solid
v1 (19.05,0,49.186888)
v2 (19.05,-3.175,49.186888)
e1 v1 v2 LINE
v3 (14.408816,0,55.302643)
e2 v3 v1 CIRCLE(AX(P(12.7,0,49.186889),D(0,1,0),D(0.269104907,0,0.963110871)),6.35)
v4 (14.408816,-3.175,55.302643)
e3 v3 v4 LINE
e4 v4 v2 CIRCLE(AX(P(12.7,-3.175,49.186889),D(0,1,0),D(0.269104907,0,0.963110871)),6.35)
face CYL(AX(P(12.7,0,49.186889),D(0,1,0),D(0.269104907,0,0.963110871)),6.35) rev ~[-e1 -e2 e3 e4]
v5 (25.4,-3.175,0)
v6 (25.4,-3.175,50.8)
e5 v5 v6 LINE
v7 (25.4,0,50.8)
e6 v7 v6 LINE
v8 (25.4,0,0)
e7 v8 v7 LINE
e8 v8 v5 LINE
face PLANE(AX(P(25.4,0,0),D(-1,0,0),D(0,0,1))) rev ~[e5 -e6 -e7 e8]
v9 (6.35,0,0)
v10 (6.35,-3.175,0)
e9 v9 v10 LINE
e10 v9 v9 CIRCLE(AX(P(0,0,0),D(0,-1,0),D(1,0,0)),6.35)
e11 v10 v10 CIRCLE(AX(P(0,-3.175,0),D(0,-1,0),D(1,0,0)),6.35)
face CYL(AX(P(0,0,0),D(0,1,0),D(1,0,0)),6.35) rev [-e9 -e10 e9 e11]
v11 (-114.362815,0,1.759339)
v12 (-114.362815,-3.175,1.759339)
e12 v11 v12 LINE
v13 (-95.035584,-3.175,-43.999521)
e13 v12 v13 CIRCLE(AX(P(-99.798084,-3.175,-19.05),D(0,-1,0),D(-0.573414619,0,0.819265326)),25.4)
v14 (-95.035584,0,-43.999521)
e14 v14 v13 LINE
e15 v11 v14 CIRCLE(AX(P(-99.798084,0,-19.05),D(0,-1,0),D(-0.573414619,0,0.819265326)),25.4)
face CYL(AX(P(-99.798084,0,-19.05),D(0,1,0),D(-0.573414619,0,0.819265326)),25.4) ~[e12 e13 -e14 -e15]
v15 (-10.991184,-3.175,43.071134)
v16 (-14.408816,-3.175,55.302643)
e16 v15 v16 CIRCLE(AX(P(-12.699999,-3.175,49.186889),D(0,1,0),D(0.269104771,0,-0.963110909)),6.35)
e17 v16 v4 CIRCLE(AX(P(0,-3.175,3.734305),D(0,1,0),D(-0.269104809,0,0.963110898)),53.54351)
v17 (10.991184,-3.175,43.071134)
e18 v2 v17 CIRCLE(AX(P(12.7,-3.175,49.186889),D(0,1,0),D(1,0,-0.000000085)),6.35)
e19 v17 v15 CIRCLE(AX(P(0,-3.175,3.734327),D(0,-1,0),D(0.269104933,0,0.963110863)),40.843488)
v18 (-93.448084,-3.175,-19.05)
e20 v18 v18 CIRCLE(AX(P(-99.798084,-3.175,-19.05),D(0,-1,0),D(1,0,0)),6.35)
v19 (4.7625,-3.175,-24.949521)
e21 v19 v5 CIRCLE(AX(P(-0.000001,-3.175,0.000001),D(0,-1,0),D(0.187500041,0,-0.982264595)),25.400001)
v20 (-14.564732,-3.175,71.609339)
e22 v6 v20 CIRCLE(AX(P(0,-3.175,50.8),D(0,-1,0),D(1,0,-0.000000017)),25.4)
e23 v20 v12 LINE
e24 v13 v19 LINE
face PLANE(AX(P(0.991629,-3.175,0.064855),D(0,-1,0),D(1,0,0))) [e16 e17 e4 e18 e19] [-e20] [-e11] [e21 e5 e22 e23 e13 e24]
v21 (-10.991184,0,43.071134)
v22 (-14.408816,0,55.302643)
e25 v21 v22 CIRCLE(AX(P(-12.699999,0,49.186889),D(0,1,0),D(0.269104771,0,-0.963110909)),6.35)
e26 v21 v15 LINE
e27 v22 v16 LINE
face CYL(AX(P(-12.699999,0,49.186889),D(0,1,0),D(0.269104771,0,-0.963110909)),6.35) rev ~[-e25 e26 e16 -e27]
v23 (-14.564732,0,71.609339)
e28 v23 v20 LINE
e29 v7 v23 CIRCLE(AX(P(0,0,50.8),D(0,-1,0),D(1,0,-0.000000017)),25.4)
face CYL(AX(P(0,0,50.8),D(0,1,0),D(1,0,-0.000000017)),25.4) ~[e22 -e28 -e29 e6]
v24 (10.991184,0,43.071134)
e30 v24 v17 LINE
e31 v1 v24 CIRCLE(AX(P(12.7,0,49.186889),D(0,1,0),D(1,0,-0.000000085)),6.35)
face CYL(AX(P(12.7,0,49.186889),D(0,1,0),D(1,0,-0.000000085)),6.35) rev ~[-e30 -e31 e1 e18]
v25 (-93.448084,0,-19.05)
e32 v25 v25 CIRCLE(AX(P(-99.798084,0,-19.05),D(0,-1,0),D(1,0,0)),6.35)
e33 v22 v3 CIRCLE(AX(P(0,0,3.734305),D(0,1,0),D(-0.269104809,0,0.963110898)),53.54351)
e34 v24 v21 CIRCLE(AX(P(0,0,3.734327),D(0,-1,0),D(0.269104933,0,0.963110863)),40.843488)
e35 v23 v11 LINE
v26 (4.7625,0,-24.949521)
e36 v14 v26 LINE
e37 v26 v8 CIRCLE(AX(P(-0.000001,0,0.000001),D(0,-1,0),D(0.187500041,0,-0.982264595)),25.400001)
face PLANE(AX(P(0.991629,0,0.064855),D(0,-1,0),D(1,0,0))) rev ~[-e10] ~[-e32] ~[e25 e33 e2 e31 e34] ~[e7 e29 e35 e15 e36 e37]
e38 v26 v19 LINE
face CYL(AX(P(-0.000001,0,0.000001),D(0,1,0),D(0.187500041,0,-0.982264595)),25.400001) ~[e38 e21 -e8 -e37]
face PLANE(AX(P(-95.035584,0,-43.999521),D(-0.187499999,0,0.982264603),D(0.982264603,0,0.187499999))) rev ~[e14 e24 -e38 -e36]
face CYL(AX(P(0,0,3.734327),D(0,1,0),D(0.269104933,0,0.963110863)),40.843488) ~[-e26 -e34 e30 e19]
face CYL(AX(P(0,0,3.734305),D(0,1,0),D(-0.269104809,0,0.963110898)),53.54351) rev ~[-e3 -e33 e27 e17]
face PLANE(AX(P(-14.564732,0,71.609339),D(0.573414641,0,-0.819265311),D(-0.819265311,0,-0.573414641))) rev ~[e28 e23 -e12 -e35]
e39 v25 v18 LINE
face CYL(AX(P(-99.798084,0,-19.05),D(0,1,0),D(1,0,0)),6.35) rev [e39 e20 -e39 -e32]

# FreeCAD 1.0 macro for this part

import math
import FreeCAD as App
import Part
import Sketcher

V = App.Vector
Q = App.Units.Quantity

doc = App.newDocument("Part")
body = doc.addObject("PartDesign::Body", "Body")

# Sketch on XZ plane
sketch1 = body.newObject("Sketcher::SketchObject", "Sketch")
sketch1.AttachmentSupport = (doc.getObject("XZ_Plane"), [""])
sketch1.MapMode = "FlatFace"
sketch1.addGeometry(Part.LineSegment(V(-14.564732, 71.609339, 0), V(-114.362815, 1.759339, 0)), False)
sketch1.addGeometry(Part.ArcOfCircle(Part.Circle(V(-99.798084, -19.05, 0), V(0, 0, 1), 25.4), math.radians(124.988682), math.radians(280.806922)), False)
sketch1.addGeometry(Part.LineSegment(V(-95.035584, -43.999521, 0), V(4.7625, -24.949521, 0)), False)
sketch1.addGeometry(Part.ArcOfCircle(Part.Circle(V(-0.000001, 0.000001, 0), V(0, 0, 1), 25.400001), math.radians(-79.193075), math.radians(-0.000002)), False)
sketch1.addGeometry(Part.LineSegment(V(25.4, 0, 0), V(25.4, 50.8, 0)), False)
sketch1.addGeometry(Part.ArcOfCircle(Part.Circle(V(0, 50.8, 0), V(0, 0, 1), 25.4), math.radians(-0.000001), math.radians(124.988685)), False)
sketch1.addGeometry(Part.Circle(V(-99.798084, -19.05, 0), V(0, 0, 1), 6.35), False)
sketch1.addGeometry(Part.Circle(V(0, 0, 0), V(0, 0, 1), 6.35), False)
sketch1.addGeometry(Part.ArcOfCircle(Part.Circle(V(0, 3.734327, 0), V(0, 0, 1), 40.843488), math.radians(74.388988), math.radians(105.611012)), False)
sketch1.addGeometry(Part.ArcOfCircle(Part.Circle(V(-12.699999, 49.186889, 0), V(0, 0, 1), 6.35), math.radians(105.611014), math.radians(285.611002)), False)
sketch1.addGeometry(Part.ArcOfCircle(Part.Circle(V(0, 3.734305, 0), V(0, 0, 1), 53.54351), math.radians(74.388995), math.radians(105.611005)), False)
sketch1.addGeometry(Part.ArcOfCircle(Part.Circle(V(12.7, 49.186889, 0), V(0, 0, 1), 6.35), math.radians(-0.000007), math.radians(74.388989)), False)
sketch1.addGeometry(Part.ArcOfCircle(Part.Circle(V(12.7, 49.186889, 0), V(0, 0, 1), 6.35), math.radians(-105.611005), math.radians(-0.000005)), False)
sketch1.addConstraint(Sketcher.Constraint("Tangent", 0, 2, 1, 1))
sketch1.addConstraint(Sketcher.Constraint("Tangent", 1, 2, 2, 1))
sketch1.addConstraint(Sketcher.Constraint("Tangent", 2, 2, 3, 1))
sketch1.addConstraint(Sketcher.Constraint("Tangent", 3, 2, 4, 1))
sketch1.addConstraint(Sketcher.Constraint("Tangent", 4, 2, 5, 1))
sketch1.addConstraint(Sketcher.Constraint("Tangent", 5, 2, 0, 1))
sketch1.addConstraint(Sketcher.Constraint("Tangent", 8, 2, 9, 2))
sketch1.addConstraint(Sketcher.Constraint("Tangent", 9, 1, 10, 2))
sketch1.addConstraint(Sketcher.Constraint("Tangent", 10, 1, 11, 2))
sketch1.addConstraint(Sketcher.Constraint("Tangent", 11, 1, 12, 2))
sketch1.addConstraint(Sketcher.Constraint("Tangent", 12, 1, 8, 1))
sketch1.addConstraint(Sketcher.Constraint("Vertical", 4))
sketch1.addConstraint(Sketcher.Constraint("Coincident", 3, 3, -1, 1))
sketch1.addConstraint(Sketcher.Constraint("Coincident", 7, 3, -1, 1))
sketch1.addConstraint(Sketcher.Constraint("Coincident", 6, 3, 1, 3))
sketch1.addConstraint(Sketcher.Constraint("Equal", 1, 3))
sketch1.addConstraint(Sketcher.Constraint("Equal", 3, 5))
sketch1.addConstraint(Sketcher.Constraint("Equal", 6, 7))
sketch1.addConstraint(Sketcher.Constraint("Equal", 7, 9))
sketch1.addConstraint(Sketcher.Constraint("Equal", 9, 11))
sketch1.addConstraint(Sketcher.Constraint("Equal", 11, 12))
sketch1.addConstraint(Sketcher.Constraint("Symmetric", 9, 3, 11, 3, -2))
sketch1.addConstraint(Sketcher.Constraint("Horizontal", 12, 3, 11, 1))
sketch1.addConstraint(Sketcher.Constraint("Radius", 1, Q("1 in")))
sketch1.addConstraint(Sketcher.Constraint("Diameter", 6, Q("0.5 in")))
sketch1.addConstraint(Sketcher.Constraint("DistanceY", 4, 1, 4, 2, Q("2 in")))
sketch1.addConstraint(Sketcher.Constraint("Distance", 2, Q("4 in")))
sketch1.addConstraint(Sketcher.Constraint("DistanceX", 9, 3, 11, 3, Q("1 in")))
sketch1.addConstraint(Sketcher.Constraint("DistanceY", 1, 3, -1, 1, Q("0.75 in")))
sketch1.addConstraint(Sketcher.Constraint("Radius", 10, Q("53.54351 mm")))
sketch1.addConstraint(Sketcher.Constraint("Radius", 8, Q("40.843488 mm")))
sketch1.addConstraint(Sketcher.Constraint("DistanceY", -1, 1, 9, 3, Q("49.186889 mm")))
pad1 = body.newObject("PartDesign::Pad", "Pad")
pad1.Profile = sketch1
pad1.Length = Q("0.125 in")

doc.recompute()
